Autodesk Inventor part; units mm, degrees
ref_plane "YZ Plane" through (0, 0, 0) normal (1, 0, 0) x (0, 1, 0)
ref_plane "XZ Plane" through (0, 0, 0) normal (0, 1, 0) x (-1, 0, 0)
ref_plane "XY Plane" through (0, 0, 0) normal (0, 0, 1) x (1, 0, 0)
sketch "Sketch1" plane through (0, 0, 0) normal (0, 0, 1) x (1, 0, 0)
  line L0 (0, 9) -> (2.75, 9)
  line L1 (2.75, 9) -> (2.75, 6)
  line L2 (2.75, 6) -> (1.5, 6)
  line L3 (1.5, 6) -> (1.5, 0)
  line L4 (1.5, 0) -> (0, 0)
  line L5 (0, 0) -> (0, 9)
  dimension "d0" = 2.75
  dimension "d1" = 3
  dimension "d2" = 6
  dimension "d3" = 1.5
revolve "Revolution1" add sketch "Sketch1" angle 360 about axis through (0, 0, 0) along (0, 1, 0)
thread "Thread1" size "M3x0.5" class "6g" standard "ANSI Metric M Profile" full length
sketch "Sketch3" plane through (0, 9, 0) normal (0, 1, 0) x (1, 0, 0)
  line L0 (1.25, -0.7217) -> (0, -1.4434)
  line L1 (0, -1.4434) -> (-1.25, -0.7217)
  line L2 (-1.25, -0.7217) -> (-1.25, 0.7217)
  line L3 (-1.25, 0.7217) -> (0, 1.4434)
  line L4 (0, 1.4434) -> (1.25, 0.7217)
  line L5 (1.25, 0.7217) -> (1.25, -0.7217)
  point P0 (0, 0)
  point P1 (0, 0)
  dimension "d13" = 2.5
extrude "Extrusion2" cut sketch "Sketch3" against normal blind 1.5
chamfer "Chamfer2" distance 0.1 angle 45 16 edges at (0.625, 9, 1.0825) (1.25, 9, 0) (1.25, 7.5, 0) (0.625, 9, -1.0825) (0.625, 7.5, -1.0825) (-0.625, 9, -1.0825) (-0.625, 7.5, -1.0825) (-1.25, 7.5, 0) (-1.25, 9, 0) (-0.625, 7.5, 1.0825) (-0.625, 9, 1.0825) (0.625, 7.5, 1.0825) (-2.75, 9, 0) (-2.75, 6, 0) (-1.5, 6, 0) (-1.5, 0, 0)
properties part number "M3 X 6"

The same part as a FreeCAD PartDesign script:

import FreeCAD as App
import Part
import Sketcher
Q = App.Units.Quantity


def edges_at(feature, points):
    """Names of the edges that pass closest to the given points."""
    edges = feature.Shape.Edges
    near = lambda p: min(range(len(edges)), key=lambda i: edges[i].distToShape(Part.Vertex(*p))[0])
    return sorted({f"Edge{near(p) + 1}" for p in points})


def add_polygon(sketch, points):
    """Adds a closed chain of lines whose ends are joined by coincident constraints."""
    first, n = sketch.GeometryCount, len(points)
    for a, b in zip(points, points[1:] + points[:1]):
        sketch.addGeometry(Part.LineSegment(App.Vector(*a, 0), App.Vector(*b, 0)), False)
    for i in range(n):
        sketch.addConstraint(Sketcher.Constraint("Coincident", first + i, 2, first + (i + 1) % n, 1))

doc = App.newDocument("Part")
body = doc.addObject("PartDesign::Body", "Body")

sketch1 = body.newObject("Sketcher::SketchObject", "Sketch")
sketch1.AttachmentSupport = (doc.getObject("XY_Plane"), [""])
sketch1.MapMode = "FlatFace"
add_polygon(sketch1, [(2.8, 9), (0, 9), (0, 0), (1.5, 0), (1.5, 6), (2.8, 6)])
sketch1.addConstraint([
    Sketcher.Constraint("Horizontal", 0),
    Sketcher.Constraint("Vertical", 1),
    Sketcher.Constraint("Horizontal", 2),
    Sketcher.Constraint("Vertical", 3),
    Sketcher.Constraint("Horizontal", 4),
    Sketcher.Constraint("Vertical", 5),
    Sketcher.Constraint("Coincident", 1, 2, -1, 1),
    Sketcher.Constraint("DistanceY", 3, 1, 3, 2, 6.0),
    Sketcher.Constraint("DistanceY", 5, 1, 5, 2, 3.0),
    Sketcher.Constraint("DistanceX", 2, 1, 2, 2, 1.5),
    Sketcher.Constraint("DistanceX", 0, 2, 0, 1, 2.75),
])
revolution = body.newObject("PartDesign::Revolution", "Revolution")
revolution.Profile = sketch1
revolution.ReferenceAxis = (sketch1, ["V_Axis"])
revolution.Angle = 360

sketch2 = body.newObject("Sketcher::SketchObject", "Sketch001")
sketch2.AttachmentSupport = (doc.getObject("XZ_Plane"), [""])
sketch2.MapMode = "FlatFace"
sketch2.AttachmentOffset = App.Placement(App.Vector(0, 0, -9), App.Rotation())
add_polygon(sketch2, [(0, 1.4), (1.2, 0.7), (1.2, -0.7), (0, -1.4), (-1.2, -0.7), (-1.2, 0.7)])
sketch2.addConstraint([
    Sketcher.Constraint("Vertical", 1),
    Sketcher.Constraint("Vertical", 4),
    Sketcher.Constraint("Symmetric", 0, 2, 3, 2, -1, 1),
    Sketcher.Constraint("Symmetric", 2, 2, 5, 2, -1, 1),
    Sketcher.Constraint("PointOnObject", 2, 2, -2),
    Sketcher.Constraint("Parallel", 2, 5),
    Sketcher.Constraint("Horizontal", 1, 2, 3, 2),
    Sketcher.Constraint("DistanceX", 3, 2, 1, 2, 2.5),
    Sketcher.Constraint("Angle", 0, Q("-30.0004 deg")),
    Sketcher.Constraint("DistanceY", 1, 2, 1, 1, 1.4434),
])
pocket1 = body.newObject("PartDesign::Pocket", "Pocket")
pocket1.Profile = sketch2
pocket1.Length = 1.5
pocket1.Reversed = True
doc.recompute()

chamfer = body.newObject("PartDesign::Chamfer", "Chamfer")
chamfer.Base = (pocket1, edges_at(pocket1, [
    (0.625, 9, 1.083),
    (1.25, 9, 0),
    (1.25, 7.5, 0),
    (0.625, 9, -1.083),
    (0.625, 7.5, -1.083),
    (-0.625, 9, -1.083),
    (-0.625, 7.5, -1.083),
    (-1.25, 7.5, 0),
    (-1.25, 9, 0),
    (-0.625, 7.5, 1.083),
    (-0.625, 9, 1.083),
    (0.625, 7.5, 1.083),
    (-2.75, 9, 0),
    (-2.75, 6, 0),
    (-1.5, 6, 0),
    (-1.5, 0, 0),
]))
chamfer.Size = 0.1

doc.recompute()
